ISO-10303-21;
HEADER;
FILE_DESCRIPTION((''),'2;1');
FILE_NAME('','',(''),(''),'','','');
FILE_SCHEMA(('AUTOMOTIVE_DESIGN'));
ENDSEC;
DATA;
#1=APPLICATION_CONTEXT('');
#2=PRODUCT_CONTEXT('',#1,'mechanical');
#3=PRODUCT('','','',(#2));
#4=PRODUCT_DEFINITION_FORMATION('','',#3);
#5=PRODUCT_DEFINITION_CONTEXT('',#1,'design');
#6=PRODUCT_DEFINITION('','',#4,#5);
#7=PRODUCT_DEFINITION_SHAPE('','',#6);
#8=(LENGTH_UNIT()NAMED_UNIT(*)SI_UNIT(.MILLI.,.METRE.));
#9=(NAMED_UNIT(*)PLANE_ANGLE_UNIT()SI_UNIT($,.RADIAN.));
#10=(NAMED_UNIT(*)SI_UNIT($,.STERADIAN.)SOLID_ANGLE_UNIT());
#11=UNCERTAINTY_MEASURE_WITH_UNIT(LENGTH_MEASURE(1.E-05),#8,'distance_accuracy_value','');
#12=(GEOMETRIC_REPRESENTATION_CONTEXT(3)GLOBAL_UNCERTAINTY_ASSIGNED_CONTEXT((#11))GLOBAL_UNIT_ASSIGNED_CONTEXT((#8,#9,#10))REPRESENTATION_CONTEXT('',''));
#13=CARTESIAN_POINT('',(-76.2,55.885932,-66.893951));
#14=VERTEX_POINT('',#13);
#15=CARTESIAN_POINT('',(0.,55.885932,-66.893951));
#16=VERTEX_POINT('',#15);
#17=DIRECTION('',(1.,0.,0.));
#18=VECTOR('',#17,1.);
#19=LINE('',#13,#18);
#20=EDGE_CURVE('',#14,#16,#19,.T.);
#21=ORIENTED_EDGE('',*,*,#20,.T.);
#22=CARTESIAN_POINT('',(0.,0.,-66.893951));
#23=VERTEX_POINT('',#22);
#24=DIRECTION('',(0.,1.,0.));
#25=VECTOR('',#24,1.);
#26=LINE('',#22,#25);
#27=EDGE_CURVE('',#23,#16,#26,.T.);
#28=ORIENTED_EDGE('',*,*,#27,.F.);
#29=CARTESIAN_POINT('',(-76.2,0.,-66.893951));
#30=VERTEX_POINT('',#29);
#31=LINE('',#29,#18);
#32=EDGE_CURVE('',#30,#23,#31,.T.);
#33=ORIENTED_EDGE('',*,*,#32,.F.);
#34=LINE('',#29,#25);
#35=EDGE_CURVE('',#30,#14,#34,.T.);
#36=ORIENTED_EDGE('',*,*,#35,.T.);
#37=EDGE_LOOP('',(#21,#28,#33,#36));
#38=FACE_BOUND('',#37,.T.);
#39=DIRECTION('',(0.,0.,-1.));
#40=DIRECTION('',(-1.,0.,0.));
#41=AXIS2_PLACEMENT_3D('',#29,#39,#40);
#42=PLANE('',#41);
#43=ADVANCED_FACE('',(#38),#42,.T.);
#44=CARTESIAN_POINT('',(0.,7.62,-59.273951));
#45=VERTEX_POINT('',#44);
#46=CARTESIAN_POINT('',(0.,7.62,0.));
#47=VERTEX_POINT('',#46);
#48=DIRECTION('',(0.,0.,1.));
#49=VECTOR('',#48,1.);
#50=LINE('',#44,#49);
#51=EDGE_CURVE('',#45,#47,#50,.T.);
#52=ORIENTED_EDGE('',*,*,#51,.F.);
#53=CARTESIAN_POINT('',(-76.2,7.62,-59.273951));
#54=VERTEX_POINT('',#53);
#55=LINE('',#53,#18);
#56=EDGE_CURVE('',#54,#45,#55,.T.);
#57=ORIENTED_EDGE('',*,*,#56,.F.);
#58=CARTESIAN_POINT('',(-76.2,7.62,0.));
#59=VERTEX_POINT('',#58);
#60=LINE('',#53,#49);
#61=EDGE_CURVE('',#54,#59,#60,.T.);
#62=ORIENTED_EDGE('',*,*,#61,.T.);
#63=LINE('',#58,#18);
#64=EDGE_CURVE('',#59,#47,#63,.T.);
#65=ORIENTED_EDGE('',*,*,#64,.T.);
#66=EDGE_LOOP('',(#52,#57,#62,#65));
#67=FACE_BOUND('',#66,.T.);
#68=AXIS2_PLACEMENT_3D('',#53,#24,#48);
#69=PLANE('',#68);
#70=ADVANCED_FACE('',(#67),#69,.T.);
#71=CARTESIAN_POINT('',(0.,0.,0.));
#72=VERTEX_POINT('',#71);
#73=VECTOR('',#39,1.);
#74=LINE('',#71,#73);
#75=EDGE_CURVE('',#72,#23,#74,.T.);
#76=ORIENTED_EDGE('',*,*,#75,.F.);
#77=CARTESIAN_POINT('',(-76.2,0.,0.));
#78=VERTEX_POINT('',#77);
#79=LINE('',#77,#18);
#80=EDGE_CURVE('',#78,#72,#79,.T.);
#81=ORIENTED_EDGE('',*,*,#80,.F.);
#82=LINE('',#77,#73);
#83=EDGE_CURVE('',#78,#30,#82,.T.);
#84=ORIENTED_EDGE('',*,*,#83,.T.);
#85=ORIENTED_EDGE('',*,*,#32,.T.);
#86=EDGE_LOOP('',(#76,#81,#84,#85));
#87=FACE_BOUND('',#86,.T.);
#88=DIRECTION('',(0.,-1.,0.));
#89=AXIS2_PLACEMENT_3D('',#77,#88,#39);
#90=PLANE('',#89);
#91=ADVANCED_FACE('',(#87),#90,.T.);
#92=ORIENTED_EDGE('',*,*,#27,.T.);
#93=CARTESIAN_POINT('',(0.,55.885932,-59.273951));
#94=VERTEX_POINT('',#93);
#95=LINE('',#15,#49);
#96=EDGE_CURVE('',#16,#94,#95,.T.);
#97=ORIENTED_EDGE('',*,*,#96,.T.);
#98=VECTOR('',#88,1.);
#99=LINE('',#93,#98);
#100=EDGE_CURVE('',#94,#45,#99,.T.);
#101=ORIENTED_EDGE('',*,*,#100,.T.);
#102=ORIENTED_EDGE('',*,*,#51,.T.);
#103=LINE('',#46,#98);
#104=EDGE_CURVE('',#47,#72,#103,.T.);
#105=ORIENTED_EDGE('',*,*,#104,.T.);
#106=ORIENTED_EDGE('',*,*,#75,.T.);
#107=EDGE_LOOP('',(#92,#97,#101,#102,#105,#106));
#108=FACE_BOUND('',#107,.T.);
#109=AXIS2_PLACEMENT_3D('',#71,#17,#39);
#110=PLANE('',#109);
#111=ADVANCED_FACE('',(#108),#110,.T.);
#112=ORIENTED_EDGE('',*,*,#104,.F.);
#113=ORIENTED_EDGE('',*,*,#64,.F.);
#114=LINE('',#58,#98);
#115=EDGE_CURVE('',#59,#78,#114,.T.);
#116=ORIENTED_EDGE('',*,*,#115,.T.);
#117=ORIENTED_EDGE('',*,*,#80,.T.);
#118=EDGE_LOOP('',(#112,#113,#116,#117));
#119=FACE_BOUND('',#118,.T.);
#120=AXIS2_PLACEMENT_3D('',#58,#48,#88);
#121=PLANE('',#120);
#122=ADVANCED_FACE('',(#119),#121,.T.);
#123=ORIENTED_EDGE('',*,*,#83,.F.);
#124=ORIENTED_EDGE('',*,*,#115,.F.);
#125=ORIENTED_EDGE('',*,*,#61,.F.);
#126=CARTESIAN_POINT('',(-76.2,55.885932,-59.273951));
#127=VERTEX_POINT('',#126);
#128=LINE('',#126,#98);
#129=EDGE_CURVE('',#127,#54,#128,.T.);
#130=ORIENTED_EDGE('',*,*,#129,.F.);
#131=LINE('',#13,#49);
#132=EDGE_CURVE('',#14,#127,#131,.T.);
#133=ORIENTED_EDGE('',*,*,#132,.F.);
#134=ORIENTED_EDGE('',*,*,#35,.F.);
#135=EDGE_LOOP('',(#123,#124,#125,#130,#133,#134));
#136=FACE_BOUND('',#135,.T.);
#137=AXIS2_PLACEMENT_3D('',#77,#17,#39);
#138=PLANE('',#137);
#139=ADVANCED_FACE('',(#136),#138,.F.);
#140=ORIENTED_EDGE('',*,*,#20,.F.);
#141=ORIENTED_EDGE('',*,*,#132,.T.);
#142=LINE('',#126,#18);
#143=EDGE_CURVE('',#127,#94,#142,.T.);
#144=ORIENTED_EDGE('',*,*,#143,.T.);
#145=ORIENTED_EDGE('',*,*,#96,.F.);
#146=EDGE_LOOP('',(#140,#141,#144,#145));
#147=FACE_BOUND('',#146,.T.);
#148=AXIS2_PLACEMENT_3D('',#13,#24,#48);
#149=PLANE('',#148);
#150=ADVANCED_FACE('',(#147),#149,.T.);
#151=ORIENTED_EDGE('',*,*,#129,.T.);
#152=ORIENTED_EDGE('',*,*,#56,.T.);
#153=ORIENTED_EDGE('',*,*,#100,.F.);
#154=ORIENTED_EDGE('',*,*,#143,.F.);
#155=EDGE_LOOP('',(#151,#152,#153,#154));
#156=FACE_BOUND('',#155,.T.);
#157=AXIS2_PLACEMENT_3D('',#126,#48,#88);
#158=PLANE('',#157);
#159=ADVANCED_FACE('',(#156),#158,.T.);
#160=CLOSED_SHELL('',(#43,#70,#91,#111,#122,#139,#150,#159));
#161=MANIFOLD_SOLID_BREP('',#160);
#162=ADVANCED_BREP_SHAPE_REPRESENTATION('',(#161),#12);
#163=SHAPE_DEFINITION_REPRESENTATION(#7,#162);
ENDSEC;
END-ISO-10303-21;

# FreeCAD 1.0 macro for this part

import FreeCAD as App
import Part
import Sketcher

V = App.Vector
Q = App.Units.Quantity

doc = App.newDocument("Part")
body = doc.addObject("PartDesign::Body", "Body")

# Sketch on YZ plane
sketch1 = body.newObject("Sketcher::SketchObject", "Sketch")
sketch1.AttachmentSupport = (doc.getObject("YZ_Plane"), [""])
sketch1.MapMode = "FlatFace"
sketch1.addGeometry([
    Part.LineSegment(V(0, 0, 0), V(0, -67, 0)),  # 0
    Part.LineSegment(V(0, -67, 0), V(56, -67, 0)),  # 1
    Part.LineSegment(V(56, -67, 0), V(56, -59, 0)),  # 2
    Part.LineSegment(V(56, -59, 0), V(8, -59, 0)),  # 3
    Part.LineSegment(V(8, -59, 0), V(8, 0, 0)),  # 4
    Part.LineSegment(V(8, 0, 0), V(0, 0, 0)),  # 5
], False)
sketch1.addConstraint([
    Sketcher.Constraint("Coincident", 0, 2, 1, 1),
    Sketcher.Constraint("Coincident", 1, 2, 2, 1),
    Sketcher.Constraint("Coincident", 2, 2, 3, 1),
    Sketcher.Constraint("Coincident", 3, 2, 4, 1),
    Sketcher.Constraint("Coincident", 4, 2, 5, 1),
    Sketcher.Constraint("Coincident", 5, 2, 0, 1),
    Sketcher.Constraint("Vertical", 0),
    Sketcher.Constraint("Horizontal", 1),
    Sketcher.Constraint("Vertical", 2),
    Sketcher.Constraint("Horizontal", 3),
    Sketcher.Constraint("Vertical", 4),
    Sketcher.Constraint("Horizontal", 5),
    Sketcher.Constraint("Coincident", 5, 2, -1, 1),
    Sketcher.Constraint("Equal", 5, 2),
    Sketcher.Constraint("DistanceX", 5, 2, 5, 1, Q("0.3 in")),
    Sketcher.Constraint("DistanceX", 1, 1, 1, 2, 55.885932),
    Sketcher.Constraint("DistanceY", 0, 2, 0, 1, 66.893951),
])
pad1 = body.newObject("PartDesign::Pad", "Pad")
pad1.Profile = sketch1
pad1.Length = Q("3 in")
pad1.Reversed = True

doc.recompute()
